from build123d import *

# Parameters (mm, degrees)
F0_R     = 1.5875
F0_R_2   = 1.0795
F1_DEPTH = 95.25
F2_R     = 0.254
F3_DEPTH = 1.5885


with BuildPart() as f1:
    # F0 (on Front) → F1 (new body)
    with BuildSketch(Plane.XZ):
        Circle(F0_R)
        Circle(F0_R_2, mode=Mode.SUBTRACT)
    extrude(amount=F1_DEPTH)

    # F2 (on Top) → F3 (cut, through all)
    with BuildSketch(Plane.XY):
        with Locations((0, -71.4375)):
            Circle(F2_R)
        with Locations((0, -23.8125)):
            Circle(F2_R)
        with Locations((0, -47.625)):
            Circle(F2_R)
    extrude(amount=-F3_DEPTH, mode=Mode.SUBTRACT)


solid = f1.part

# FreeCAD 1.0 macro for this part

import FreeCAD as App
import Part
import Sketcher

V = App.Vector
Q = App.Units.Quantity

doc = App.newDocument("Part")
body = doc.addObject("PartDesign::Body", "Body")

# Sketch on XZ plane
sketch1 = doc.addObject("Sketcher::SketchObject", "Sketch")
body.addObject(sketch1)
sketch1.AttachmentSupport = (doc.XZ_Plane, [""])
sketch1.MapMode = "FlatFace"
sketch1.addGeometry([
    Part.Circle(V(0, 0, 0), V(0, 0, 1), 1.6),
    Part.Circle(V(0, 0, 0), V(0, 0, 1), 1.1),
], False)
sketch1.addConstraint([
    Sketcher.Constraint("Coincident", 0, 3, -1, 1),
    Sketcher.Constraint("Coincident", 1, 3, -1, 1),
    Sketcher.Constraint("Diameter", 0, Q("0.125 in")),
    Sketcher.Constraint("Diameter", 1, Q("0.085 in")),
])
pad1 = doc.addObject("PartDesign::Pad", "Pad")
body.addObject(pad1)
pad1.Profile = sketch1
pad1.Length = Q("3.75 in")

# Sketch on XY plane
sketch2 = doc.addObject("Sketcher::SketchObject", "Sketch001")
body.addObject(sketch2)
sketch2.AttachmentSupport = (doc.XY_Plane, [""])
sketch2.MapMode = "FlatFace"
sketch2.addGeometry([
    Part.Circle(V(0, -71.44, 0), V(0, 0, 1), 0.25),
    Part.Circle(V(0, -23.81, 0), V(0, 0, 1), 0.25),
    Part.Circle(V(0, -47.62, 0), V(0, 0, 1), 0.25),
], False)
sketch2.addConstraint([
    Sketcher.Constraint("Equal", 0, 1),
    Sketcher.Constraint("Equal", 1, 2),
    Sketcher.Constraint("PointOnObject", 0, 3, -2),
    Sketcher.Constraint("PointOnObject", 1, 3, -2),
    Sketcher.Constraint("PointOnObject", 2, 3, -2),
    Sketcher.Constraint("Diameter", 0, Q("0.02 in")),
    Sketcher.Constraint("DistanceY", 0, 3, -1, 1, Q("2.8125 in")),
    Sketcher.Constraint("DistanceY", 1, 3, -1, 1, Q("0.9375 in")),
    Sketcher.Constraint("DistanceY", 2, 3, -1, 1, Q("1.875 in")),
])
pocket1 = doc.addObject("PartDesign::Pocket", "Pocket")
body.addObject(pocket1)
pocket1.Profile = sketch2
pocket1.Type = "ThroughAll"

doc.recompute()
